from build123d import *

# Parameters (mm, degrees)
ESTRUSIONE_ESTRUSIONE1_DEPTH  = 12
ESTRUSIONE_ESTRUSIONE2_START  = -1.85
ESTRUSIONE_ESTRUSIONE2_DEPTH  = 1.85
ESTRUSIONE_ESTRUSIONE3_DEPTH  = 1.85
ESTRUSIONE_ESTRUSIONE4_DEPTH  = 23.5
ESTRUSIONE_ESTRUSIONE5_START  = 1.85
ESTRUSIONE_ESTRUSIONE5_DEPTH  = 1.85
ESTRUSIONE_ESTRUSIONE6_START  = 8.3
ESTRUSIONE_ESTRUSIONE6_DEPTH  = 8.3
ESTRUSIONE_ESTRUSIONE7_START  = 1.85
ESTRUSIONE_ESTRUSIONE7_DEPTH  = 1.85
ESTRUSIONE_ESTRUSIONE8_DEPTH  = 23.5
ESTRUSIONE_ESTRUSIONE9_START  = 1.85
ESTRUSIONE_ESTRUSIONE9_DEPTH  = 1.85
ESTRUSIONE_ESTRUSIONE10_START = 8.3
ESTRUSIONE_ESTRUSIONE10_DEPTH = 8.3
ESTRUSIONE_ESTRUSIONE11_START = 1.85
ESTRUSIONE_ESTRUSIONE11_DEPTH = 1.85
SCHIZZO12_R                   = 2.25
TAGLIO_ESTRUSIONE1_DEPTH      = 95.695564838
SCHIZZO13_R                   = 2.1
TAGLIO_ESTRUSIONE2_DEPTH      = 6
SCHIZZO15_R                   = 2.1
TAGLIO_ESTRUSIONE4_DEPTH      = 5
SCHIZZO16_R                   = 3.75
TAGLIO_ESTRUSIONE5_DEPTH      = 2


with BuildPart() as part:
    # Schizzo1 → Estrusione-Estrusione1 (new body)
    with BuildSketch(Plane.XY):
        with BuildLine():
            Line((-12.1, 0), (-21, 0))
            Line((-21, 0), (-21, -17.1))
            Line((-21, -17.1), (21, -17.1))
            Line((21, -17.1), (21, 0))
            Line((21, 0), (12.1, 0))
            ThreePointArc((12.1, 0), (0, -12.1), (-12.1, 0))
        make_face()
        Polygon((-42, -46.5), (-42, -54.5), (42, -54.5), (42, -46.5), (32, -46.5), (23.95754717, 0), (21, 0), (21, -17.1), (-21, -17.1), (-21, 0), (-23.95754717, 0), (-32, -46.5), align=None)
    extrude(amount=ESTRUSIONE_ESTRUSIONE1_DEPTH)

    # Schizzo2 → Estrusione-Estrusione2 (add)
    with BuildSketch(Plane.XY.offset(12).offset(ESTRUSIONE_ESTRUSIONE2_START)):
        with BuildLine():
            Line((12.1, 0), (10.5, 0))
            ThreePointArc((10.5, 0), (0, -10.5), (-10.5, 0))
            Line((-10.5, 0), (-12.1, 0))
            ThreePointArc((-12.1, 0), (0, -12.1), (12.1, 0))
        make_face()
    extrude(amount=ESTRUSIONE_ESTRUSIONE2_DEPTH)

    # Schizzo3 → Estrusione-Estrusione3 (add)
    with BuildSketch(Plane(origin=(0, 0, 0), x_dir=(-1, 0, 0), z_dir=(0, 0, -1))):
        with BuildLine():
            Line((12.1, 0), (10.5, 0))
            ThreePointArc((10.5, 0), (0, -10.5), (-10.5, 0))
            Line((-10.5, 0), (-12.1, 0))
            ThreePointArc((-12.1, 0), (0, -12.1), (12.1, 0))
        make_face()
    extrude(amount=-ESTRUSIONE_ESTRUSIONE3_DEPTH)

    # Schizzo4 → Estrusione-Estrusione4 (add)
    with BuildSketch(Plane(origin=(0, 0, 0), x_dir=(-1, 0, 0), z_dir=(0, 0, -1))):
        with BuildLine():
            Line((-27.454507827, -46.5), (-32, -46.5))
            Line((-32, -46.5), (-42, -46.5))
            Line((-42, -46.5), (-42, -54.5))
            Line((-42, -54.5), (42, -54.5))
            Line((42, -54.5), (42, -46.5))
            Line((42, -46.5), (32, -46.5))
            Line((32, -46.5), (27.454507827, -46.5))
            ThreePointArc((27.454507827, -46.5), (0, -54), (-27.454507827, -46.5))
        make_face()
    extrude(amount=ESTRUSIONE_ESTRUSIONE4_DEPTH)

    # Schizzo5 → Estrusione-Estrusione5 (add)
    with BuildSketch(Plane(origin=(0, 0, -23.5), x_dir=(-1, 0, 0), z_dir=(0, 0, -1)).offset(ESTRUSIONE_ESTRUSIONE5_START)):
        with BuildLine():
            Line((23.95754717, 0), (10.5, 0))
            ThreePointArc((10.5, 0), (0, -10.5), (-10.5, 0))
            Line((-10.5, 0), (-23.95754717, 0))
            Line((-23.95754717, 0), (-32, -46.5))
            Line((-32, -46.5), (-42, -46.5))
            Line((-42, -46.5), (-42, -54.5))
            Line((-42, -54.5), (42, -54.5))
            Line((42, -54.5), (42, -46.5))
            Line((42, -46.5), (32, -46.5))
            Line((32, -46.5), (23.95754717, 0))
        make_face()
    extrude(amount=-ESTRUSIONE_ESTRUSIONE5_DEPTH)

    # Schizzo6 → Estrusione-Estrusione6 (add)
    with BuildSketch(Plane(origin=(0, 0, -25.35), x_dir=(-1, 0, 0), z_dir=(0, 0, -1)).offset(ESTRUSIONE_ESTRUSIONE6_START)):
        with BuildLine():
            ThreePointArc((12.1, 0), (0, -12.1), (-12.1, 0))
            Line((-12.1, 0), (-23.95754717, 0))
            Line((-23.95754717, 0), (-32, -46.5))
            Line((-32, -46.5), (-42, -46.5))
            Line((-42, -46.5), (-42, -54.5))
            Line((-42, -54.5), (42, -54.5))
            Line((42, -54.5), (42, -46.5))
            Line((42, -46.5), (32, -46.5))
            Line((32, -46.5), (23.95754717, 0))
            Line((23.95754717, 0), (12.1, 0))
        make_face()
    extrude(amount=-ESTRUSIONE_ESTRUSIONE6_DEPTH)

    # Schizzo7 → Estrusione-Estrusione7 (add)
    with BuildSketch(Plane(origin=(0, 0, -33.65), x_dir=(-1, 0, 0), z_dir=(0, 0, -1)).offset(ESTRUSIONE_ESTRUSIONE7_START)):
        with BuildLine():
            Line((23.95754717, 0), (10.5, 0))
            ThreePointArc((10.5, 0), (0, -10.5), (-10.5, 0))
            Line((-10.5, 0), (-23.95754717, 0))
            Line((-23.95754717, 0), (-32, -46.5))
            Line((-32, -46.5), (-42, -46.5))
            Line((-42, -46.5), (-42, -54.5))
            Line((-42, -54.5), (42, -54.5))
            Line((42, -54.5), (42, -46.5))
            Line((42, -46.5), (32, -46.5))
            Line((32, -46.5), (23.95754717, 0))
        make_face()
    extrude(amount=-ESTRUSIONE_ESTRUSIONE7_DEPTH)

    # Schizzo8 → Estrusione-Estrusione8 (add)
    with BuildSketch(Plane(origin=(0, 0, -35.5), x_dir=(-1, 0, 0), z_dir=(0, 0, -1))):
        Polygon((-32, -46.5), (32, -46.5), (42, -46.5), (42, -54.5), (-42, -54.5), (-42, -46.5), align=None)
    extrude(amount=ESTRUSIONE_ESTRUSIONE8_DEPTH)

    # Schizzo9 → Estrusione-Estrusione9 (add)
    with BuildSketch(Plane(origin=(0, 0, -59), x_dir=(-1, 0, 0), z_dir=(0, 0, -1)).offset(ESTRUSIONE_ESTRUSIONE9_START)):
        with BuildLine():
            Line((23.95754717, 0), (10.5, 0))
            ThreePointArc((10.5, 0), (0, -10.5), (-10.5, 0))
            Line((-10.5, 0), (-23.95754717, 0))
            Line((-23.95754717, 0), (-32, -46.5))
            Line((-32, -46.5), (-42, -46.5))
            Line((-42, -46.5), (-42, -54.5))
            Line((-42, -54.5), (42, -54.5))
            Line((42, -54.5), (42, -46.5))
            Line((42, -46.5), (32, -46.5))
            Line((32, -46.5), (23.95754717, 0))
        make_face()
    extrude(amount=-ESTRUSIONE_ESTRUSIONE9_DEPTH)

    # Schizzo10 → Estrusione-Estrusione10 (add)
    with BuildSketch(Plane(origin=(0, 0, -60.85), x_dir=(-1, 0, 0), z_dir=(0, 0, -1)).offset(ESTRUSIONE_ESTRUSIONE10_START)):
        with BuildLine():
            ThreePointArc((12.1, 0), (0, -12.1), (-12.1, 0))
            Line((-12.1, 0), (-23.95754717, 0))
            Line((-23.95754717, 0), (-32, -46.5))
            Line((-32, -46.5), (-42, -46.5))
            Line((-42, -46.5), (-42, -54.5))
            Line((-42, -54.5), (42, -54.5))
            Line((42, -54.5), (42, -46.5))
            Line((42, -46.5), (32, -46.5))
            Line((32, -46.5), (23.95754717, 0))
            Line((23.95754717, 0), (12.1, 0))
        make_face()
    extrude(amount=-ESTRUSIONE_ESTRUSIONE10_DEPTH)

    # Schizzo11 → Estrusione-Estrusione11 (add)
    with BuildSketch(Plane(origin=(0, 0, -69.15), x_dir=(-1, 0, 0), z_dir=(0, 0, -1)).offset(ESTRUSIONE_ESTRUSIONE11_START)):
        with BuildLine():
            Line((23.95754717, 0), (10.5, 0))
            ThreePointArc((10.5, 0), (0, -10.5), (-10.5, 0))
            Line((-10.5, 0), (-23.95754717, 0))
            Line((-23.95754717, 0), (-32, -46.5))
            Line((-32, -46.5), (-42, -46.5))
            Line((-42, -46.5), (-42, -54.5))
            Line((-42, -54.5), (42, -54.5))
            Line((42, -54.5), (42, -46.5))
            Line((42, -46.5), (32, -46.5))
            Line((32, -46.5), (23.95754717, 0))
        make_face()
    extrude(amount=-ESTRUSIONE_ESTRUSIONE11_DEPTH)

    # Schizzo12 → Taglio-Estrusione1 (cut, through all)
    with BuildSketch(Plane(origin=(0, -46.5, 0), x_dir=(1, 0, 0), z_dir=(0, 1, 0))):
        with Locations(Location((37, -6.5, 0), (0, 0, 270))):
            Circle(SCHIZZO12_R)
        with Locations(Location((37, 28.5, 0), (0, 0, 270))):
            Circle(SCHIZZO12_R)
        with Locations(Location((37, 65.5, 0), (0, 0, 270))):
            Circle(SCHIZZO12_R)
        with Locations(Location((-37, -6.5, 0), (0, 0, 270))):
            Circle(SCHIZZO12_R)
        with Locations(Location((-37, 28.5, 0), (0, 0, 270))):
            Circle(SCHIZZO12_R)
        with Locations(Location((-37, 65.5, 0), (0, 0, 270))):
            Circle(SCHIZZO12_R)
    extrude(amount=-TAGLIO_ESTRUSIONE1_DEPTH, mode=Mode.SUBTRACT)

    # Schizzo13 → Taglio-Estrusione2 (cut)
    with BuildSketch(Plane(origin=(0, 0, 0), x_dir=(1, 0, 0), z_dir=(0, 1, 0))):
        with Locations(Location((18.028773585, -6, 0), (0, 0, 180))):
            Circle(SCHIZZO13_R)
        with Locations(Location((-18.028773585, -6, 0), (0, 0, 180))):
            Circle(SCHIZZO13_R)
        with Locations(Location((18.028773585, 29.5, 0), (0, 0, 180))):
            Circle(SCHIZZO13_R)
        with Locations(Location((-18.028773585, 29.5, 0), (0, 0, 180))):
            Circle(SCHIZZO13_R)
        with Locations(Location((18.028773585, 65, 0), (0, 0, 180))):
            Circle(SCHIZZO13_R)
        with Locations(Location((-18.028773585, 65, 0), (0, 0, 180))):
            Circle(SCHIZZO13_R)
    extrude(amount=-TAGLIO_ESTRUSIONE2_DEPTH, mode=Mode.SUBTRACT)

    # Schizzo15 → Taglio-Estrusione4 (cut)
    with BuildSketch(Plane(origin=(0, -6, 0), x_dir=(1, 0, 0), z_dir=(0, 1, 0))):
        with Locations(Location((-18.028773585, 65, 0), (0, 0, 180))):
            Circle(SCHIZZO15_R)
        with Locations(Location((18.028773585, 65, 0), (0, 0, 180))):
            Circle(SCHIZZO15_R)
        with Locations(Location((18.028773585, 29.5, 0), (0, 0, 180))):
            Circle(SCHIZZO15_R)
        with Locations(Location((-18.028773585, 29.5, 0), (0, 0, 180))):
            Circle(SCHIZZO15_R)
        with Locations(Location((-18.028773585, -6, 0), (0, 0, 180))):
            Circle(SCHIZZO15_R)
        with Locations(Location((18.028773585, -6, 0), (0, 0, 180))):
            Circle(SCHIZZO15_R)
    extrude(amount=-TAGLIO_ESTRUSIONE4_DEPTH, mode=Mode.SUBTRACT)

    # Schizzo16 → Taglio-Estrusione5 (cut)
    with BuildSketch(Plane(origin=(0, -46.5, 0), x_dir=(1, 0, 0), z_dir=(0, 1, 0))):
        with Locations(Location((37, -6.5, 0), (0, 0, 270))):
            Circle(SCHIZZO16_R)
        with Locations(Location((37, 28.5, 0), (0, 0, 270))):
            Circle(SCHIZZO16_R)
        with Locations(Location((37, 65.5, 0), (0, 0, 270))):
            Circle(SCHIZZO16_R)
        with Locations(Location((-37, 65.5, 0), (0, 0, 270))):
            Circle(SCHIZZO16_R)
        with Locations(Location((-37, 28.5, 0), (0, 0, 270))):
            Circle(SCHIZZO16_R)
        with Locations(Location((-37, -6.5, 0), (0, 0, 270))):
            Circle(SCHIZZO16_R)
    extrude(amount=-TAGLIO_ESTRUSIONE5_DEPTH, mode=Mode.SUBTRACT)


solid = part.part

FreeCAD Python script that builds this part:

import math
import FreeCAD as App
import Part
import Sketcher
from FreeCAD import Vector
Q = App.Units.Quantity


def add_polygon(sketch, points):
    """Adds a closed chain of lines whose ends are joined by coincident constraints."""
    first, n = sketch.GeometryCount, len(points)
    for a, b in zip(points, points[1:] + points[:1]):
        sketch.addGeometry(Part.LineSegment(App.Vector(*a, 0), App.Vector(*b, 0)), False)
    for i in range(n):
        sketch.addConstraint(Sketcher.Constraint("Coincident", first + i, 2, first + (i + 1) % n, 1))

doc = App.newDocument("Part")
body = doc.addObject("PartDesign::Body", "Body")

sketch1 = body.newObject("Sketcher::SketchObject", "Sketch")
sketch1.AttachmentSupport = (doc.getObject("XY_Plane"), [""])
sketch1.MapMode = "FlatFace"
sketch1.addGeometry(Part.LineSegment(Vector(-12.1, 0, 0), Vector(-23.957547, 0, 0)), False)
sketch1.addGeometry(Part.LineSegment(Vector(-23.957547, 0, 0), Vector(-32, -46.5, 0)), False)
sketch1.addGeometry(Part.LineSegment(Vector(-32, -46.5, 0), Vector(-42, -46.5, 0)), False)
sketch1.addGeometry(Part.LineSegment(Vector(-42, -46.5, 0), Vector(-42, -54.5, 0)), False)
sketch1.addGeometry(Part.LineSegment(Vector(-42, -54.5, 0), Vector(42, -54.5, 0)), False)
sketch1.addGeometry(Part.LineSegment(Vector(42, -54.5, 0), Vector(42, -46.5, 0)), False)
sketch1.addGeometry(Part.LineSegment(Vector(42, -46.5, 0), Vector(32, -46.5, 0)), False)
sketch1.addGeometry(Part.LineSegment(Vector(32, -46.5, 0), Vector(23.957547, 0, 0)), False)
sketch1.addGeometry(Part.LineSegment(Vector(23.957547, 0, 0), Vector(12.1, 0, 0)), False)
sketch1.addGeometry(Part.ArcOfCircle(Part.Circle(Vector(0, 0, 0), Vector(0, 0, 1), 12.1), math.radians(180), math.radians(360)), False)
sketch1.addConstraint(Sketcher.Constraint("Coincident", 0, 2, 1, 1))
sketch1.addConstraint(Sketcher.Constraint("Coincident", 1, 2, 2, 1))
sketch1.addConstraint(Sketcher.Constraint("Coincident", 2, 2, 3, 1))
sketch1.addConstraint(Sketcher.Constraint("Coincident", 3, 2, 4, 1))
sketch1.addConstraint(Sketcher.Constraint("Coincident", 4, 2, 5, 1))
sketch1.addConstraint(Sketcher.Constraint("Coincident", 5, 2, 6, 1))
sketch1.addConstraint(Sketcher.Constraint("Coincident", 6, 2, 7, 1))
sketch1.addConstraint(Sketcher.Constraint("Coincident", 7, 2, 8, 1))
sketch1.addConstraint(Sketcher.Constraint("Coincident", 8, 2, 9, 2))
sketch1.addConstraint(Sketcher.Constraint("Coincident", 9, 1, 0, 1))
sketch1.addConstraint(Sketcher.Constraint("Horizontal", 0))
sketch1.addConstraint(Sketcher.Constraint("Horizontal", 2))
sketch1.addConstraint(Sketcher.Constraint("Vertical", 3))
sketch1.addConstraint(Sketcher.Constraint("Horizontal", 4))
sketch1.addConstraint(Sketcher.Constraint("Vertical", 5))
sketch1.addConstraint(Sketcher.Constraint("Horizontal", 6))
sketch1.addConstraint(Sketcher.Constraint("Horizontal", 8))
sketch1.addConstraint(Sketcher.Constraint("Coincident", 9, 3, -1, 1))
sketch1.addConstraint(Sketcher.Constraint("Symmetric", 0, 2, 7, 2, -1, 1))
sketch1.addConstraint(Sketcher.Constraint("Symmetric", 2, 2, 5, 2, -2))
sketch1.addConstraint(Sketcher.Constraint("PointOnObject", 0, 2, -1))
sketch1.addConstraint(Sketcher.Constraint("Equal", 2, 6))
sketch1.addConstraint(Sketcher.Constraint("Radius", 9, Q("12.1 mm")))
sketch1.addConstraint(Sketcher.Constraint("DistanceX", 2, 2, 2, 1, Q("10 mm")))
sketch1.addConstraint(Sketcher.Constraint("DistanceX", 4, 1, 4, 2, Q("84 mm")))
sketch1.addConstraint(Sketcher.Constraint("DistanceY", 3, 2, 3, 1, Q("8 mm")))
sketch1.addConstraint(Sketcher.Constraint("DistanceY", 1, 2, -1, 1, Q("46.5 mm")))
sketch1.addConstraint(Sketcher.Constraint("Distance", 1, Q("47.19037 mm")))
pad1 = body.newObject("PartDesign::Pad", "Pad")
pad1.Profile = sketch1
pad1.Length = 12

sketch2 = body.newObject("Sketcher::SketchObject", "Sketch001")
sketch2.AttachmentSupport = (doc.getObject("XY_Plane"), [""])
sketch2.MapMode = "FlatFace"
sketch2.AttachmentOffset = App.Placement(Vector(0, 0, 10.15), App.Rotation())
sketch2.addGeometry(Part.LineSegment(Vector(12.1, 0, 0), Vector(10.5, 0, 0)), False)
sketch2.addGeometry(Part.ArcOfCircle(Part.Circle(Vector(0, 0, 0), Vector(0, 0, 1), 10.5), math.radians(180), math.radians(360)), False)
sketch2.addGeometry(Part.LineSegment(Vector(-10.5, 0, 0), Vector(-12.1, 0, 0)), False)
sketch2.addGeometry(Part.ArcOfCircle(Part.Circle(Vector(0, 0, 0), Vector(0, 0, 1), 12.1), math.radians(180), math.radians(360)), False)
sketch2.addConstraint(Sketcher.Constraint("Coincident", 0, 2, 1, 2))
sketch2.addConstraint(Sketcher.Constraint("Coincident", 1, 1, 2, 1))
sketch2.addConstraint(Sketcher.Constraint("Coincident", 2, 2, 3, 1))
sketch2.addConstraint(Sketcher.Constraint("Coincident", 3, 2, 0, 1))
sketch2.addConstraint(Sketcher.Constraint("Horizontal", 0))
sketch2.addConstraint(Sketcher.Constraint("Horizontal", 2))
sketch2.addConstraint(Sketcher.Constraint("Coincident", 1, 3, -1, 1))
sketch2.addConstraint(Sketcher.Constraint("Coincident", 3, 3, -1, 1))
sketch2.addConstraint(Sketcher.Constraint("PointOnObject", 0, 2, -1))
sketch2.addConstraint(Sketcher.Constraint("PointOnObject", 1, 1, -1))
sketch2.addConstraint(Sketcher.Constraint("Radius", 1, Q("10.5 mm")))
sketch2.addConstraint(Sketcher.Constraint("Radius", 3, Q("12.1 mm")))
pad2 = body.newObject("PartDesign::Pad", "Pad001")
pad2.Profile = sketch2
pad2.Length = 1.85

sketch3 = body.newObject("Sketcher::SketchObject", "Sketch002")
sketch3.AttachmentSupport = (doc.getObject("XY_Plane"), [""])
sketch3.MapMode = "FlatFace"
sketch3.addGeometry(Part.LineSegment(Vector(-12.1, 0, 0), Vector(-10.5, 0, 0)), False)
sketch3.addGeometry(Part.ArcOfCircle(Part.Circle(Vector(0, 0, 0), Vector(0, 0, 1), 10.5), math.radians(180), math.radians(360)), False)
sketch3.addGeometry(Part.LineSegment(Vector(10.5, 0, 0), Vector(12.1, 0, 0)), False)
sketch3.addGeometry(Part.ArcOfCircle(Part.Circle(Vector(0, 0, 0), Vector(0, 0, 1), 12.1), math.radians(180), math.radians(360)), False)
sketch3.addConstraint(Sketcher.Constraint("Coincident", 0, 2, 1, 1))
sketch3.addConstraint(Sketcher.Constraint("Coincident", 1, 2, 2, 1))
sketch3.addConstraint(Sketcher.Constraint("Coincident", 2, 2, 3, 2))
sketch3.addConstraint(Sketcher.Constraint("Coincident", 3, 1, 0, 1))
sketch3.addConstraint(Sketcher.Constraint("Horizontal", 0))
sketch3.addConstraint(Sketcher.Constraint("Horizontal", 2))
sketch3.addConstraint(Sketcher.Constraint("Coincident", 1, 3, -1, 1))
sketch3.addConstraint(Sketcher.Constraint("Coincident", 3, 3, -1, 1))
sketch3.addConstraint(Sketcher.Constraint("PointOnObject", 0, 2, -1))
sketch3.addConstraint(Sketcher.Constraint("PointOnObject", 1, 2, -1))
sketch3.addConstraint(Sketcher.Constraint("Radius", 1, Q("10.5 mm")))
sketch3.addConstraint(Sketcher.Constraint("Radius", 3, Q("12.1 mm")))
pad3 = body.newObject("PartDesign::Pad", "Pad002")
pad3.Profile = sketch3
pad3.Length = 1.85

sketch4 = body.newObject("Sketcher::SketchObject", "Sketch003")
sketch4.AttachmentSupport = (doc.getObject("XY_Plane"), [""])
sketch4.MapMode = "FlatFace"
sketch4.addGeometry(Part.LineSegment(Vector(27.454508, -46.5, 0), Vector(42, -46.5, 0)), False)
sketch4.addGeometry(Part.LineSegment(Vector(42, -46.5, 0), Vector(42, -54.5, 0)), False)
sketch4.addGeometry(Part.LineSegment(Vector(42, -54.5, 0), Vector(-42, -54.5, 0)), False)
sketch4.addGeometry(Part.LineSegment(Vector(-42, -54.5, 0), Vector(-42, -46.5, 0)), False)
sketch4.addGeometry(Part.LineSegment(Vector(-42, -46.5, 0), Vector(-27.454508, -46.5, 0)), False)
sketch4.addGeometry(Part.ArcOfCircle(Part.Circle(Vector(0, 0, 0), Vector(0, 0, 1), 54), math.radians(-120.558432), math.radians(-59.441568)), False)
sketch4.addConstraint(Sketcher.Constraint("Coincident", 0, 2, 1, 1))
sketch4.addConstraint(Sketcher.Constraint("Coincident", 1, 2, 2, 1))
sketch4.addConstraint(Sketcher.Constraint("Coincident", 2, 2, 3, 1))
sketch4.addConstraint(Sketcher.Constraint("Coincident", 3, 2, 4, 1))
sketch4.addConstraint(Sketcher.Constraint("Coincident", 4, 2, 5, 1))
sketch4.addConstraint(Sketcher.Constraint("Coincident", 5, 2, 0, 1))
sketch4.addConstraint(Sketcher.Constraint("Horizontal", 0))
sketch4.addConstraint(Sketcher.Constraint("Vertical", 1))
sketch4.addConstraint(Sketcher.Constraint("Horizontal", 2))
sketch4.addConstraint(Sketcher.Constraint("Vertical", 3))
sketch4.addConstraint(Sketcher.Constraint("Horizontal", 4))
sketch4.addConstraint(Sketcher.Constraint("Coincident", 5, 3, -1, 1))
sketch4.addConstraint(Sketcher.Constraint("Symmetric", 0, 2, 3, 2, -2))
sketch4.addConstraint(Sketcher.Constraint("Radius", 5, Q("54 mm")))
sketch4.addConstraint(Sketcher.Constraint("DistanceX", 2, 2, 2, 1, Q("84 mm")))
sketch4.addConstraint(Sketcher.Constraint("DistanceY", 1, 2, 1, 1, Q("8 mm")))
sketch4.addConstraint(Sketcher.Constraint("DistanceY", 0, 2, -1, 1, Q("46.5 mm")))
pad4 = body.newObject("PartDesign::Pad", "Pad003")
pad4.Profile = sketch4
pad4.Length = 23.5
pad4.Reversed = True

sketch5 = body.newObject("Sketcher::SketchObject", "Sketch004")
sketch5.AttachmentSupport = (doc.getObject("XY_Plane"), [""])
sketch5.MapMode = "FlatFace"
sketch5.AttachmentOffset = App.Placement(Vector(0, 0, -25.35), App.Rotation())
sketch5.addGeometry(Part.LineSegment(Vector(-23.957547, 0, 0), Vector(-10.5, 0, 0)), False)
sketch5.addGeometry(Part.ArcOfCircle(Part.Circle(Vector(0, 0, 0), Vector(0, 0, 1), 10.5), math.radians(180), math.radians(360)), False)
sketch5.addGeometry(Part.LineSegment(Vector(10.5, 0, 0), Vector(23.957547, 0, 0)), False)
sketch5.addGeometry(Part.LineSegment(Vector(23.957547, 0, 0), Vector(32, -46.5, 0)), False)
sketch5.addGeometry(Part.LineSegment(Vector(32, -46.5, 0), Vector(42, -46.5, 0)), False)
sketch5.addGeometry(Part.LineSegment(Vector(42, -46.5, 0), Vector(42, -54.5, 0)), False)
sketch5.addGeometry(Part.LineSegment(Vector(42, -54.5, 0), Vector(-42, -54.5, 0)), False)
sketch5.addGeometry(Part.LineSegment(Vector(-42, -54.5, 0), Vector(-42, -46.5, 0)), False)
sketch5.addGeometry(Part.LineSegment(Vector(-42, -46.5, 0), Vector(-32, -46.5, 0)), False)
sketch5.addGeometry(Part.LineSegment(Vector(-32, -46.5, 0), Vector(-23.957547, 0, 0)), False)
sketch5.addConstraint(Sketcher.Constraint("Coincident", 0, 2, 1, 1))
sketch5.addConstraint(Sketcher.Constraint("Coincident", 1, 2, 2, 1))
sketch5.addConstraint(Sketcher.Constraint("Coincident", 2, 2, 3, 1))
sketch5.addConstraint(Sketcher.Constraint("Coincident", 3, 2, 4, 1))
sketch5.addConstraint(Sketcher.Constraint("Coincident", 4, 2, 5, 1))
sketch5.addConstraint(Sketcher.Constraint("Coincident", 5, 2, 6, 1))
sketch5.addConstraint(Sketcher.Constraint("Coincident", 6, 2, 7, 1))
sketch5.addConstraint(Sketcher.Constraint("Coincident", 7, 2, 8, 1))
sketch5.addConstraint(Sketcher.Constraint("Coincident", 8, 2, 9, 1))
sketch5.addConstraint(Sketcher.Constraint("Coincident", 9, 2, 0, 1))
sketch5.addConstraint(Sketcher.Constraint("Horizontal", 0))
sketch5.addConstraint(Sketcher.Constraint("Horizontal", 2))
sketch5.addConstraint(Sketcher.Constraint("Horizontal", 4))
sketch5.addConstraint(Sketcher.Constraint("Vertical", 5))
sketch5.addConstraint(Sketcher.Constraint("Horizontal", 6))
sketch5.addConstraint(Sketcher.Constraint("Vertical", 7))
sketch5.addConstraint(Sketcher.Constraint("Horizontal", 8))
sketch5.addConstraint(Sketcher.Constraint("Coincident", 1, 3, -1, 1))
sketch5.addConstraint(Sketcher.Constraint("Symmetric", 2, 2, 9, 2, -1, 1))
sketch5.addConstraint(Sketcher.Constraint("Symmetric", 4, 2, 7, 2, -2))
sketch5.addConstraint(Sketcher.Constraint("PointOnObject", 0, 2, -1))
sketch5.addConstraint(Sketcher.Constraint("Equal", 4, 8))
sketch5.addConstraint(Sketcher.Constraint("Radius", 1, Q("10.5 mm")))
sketch5.addConstraint(Sketcher.Constraint("DistanceX", 4, 1, 4, 2, Q("10 mm")))
sketch5.addConstraint(Sketcher.Constraint("DistanceX", 6, 2, 6, 1, Q("84 mm")))
sketch5.addConstraint(Sketcher.Constraint("DistanceY", 5, 2, 5, 1, Q("8 mm")))
sketch5.addConstraint(Sketcher.Constraint("DistanceY", 3, 2, -1, 1, Q("46.5 mm")))
sketch5.addConstraint(Sketcher.Constraint("Distance", 3, Q("47.19037 mm")))
pad5 = body.newObject("PartDesign::Pad", "Pad004")
pad5.Profile = sketch5
pad5.Length = 1.85

sketch6 = body.newObject("Sketcher::SketchObject", "Sketch005")
sketch6.AttachmentSupport = (doc.getObject("XY_Plane"), [""])
sketch6.MapMode = "FlatFace"
sketch6.AttachmentOffset = App.Placement(Vector(0, 0, -33.65), App.Rotation())
sketch6.addGeometry(Part.ArcOfCircle(Part.Circle(Vector(0, 0, 0), Vector(0, 0, 1), 12.1), math.radians(180), math.radians(360)), False)
sketch6.addGeometry(Part.LineSegment(Vector(12.1, 0, 0), Vector(23.957547, 0, 0)), False)
sketch6.addGeometry(Part.LineSegment(Vector(23.957547, 0, 0), Vector(32, -46.5, 0)), False)
sketch6.addGeometry(Part.LineSegment(Vector(32, -46.5, 0), Vector(42, -46.5, 0)), False)
sketch6.addGeometry(Part.LineSegment(Vector(42, -46.5, 0), Vector(42, -54.5, 0)), False)
sketch6.addGeometry(Part.LineSegment(Vector(42, -54.5, 0), Vector(-42, -54.5, 0)), False)
sketch6.addGeometry(Part.LineSegment(Vector(-42, -54.5, 0), Vector(-42, -46.5, 0)), False)
sketch6.addGeometry(Part.LineSegment(Vector(-42, -46.5, 0), Vector(-32, -46.5, 0)), False)
sketch6.addGeometry(Part.LineSegment(Vector(-32, -46.5, 0), Vector(-23.957547, 0, 0)), False)
sketch6.addGeometry(Part.LineSegment(Vector(-23.957547, 0, 0), Vector(-12.1, 0, 0)), False)
sketch6.addConstraint(Sketcher.Constraint("Coincident", 0, 2, 1, 1))
sketch6.addConstraint(Sketcher.Constraint("Coincident", 1, 2, 2, 1))
sketch6.addConstraint(Sketcher.Constraint("Coincident", 2, 2, 3, 1))
sketch6.addConstraint(Sketcher.Constraint("Coincident", 3, 2, 4, 1))
sketch6.addConstraint(Sketcher.Constraint("Coincident", 4, 2, 5, 1))
sketch6.addConstraint(Sketcher.Constraint("Coincident", 5, 2, 6, 1))
sketch6.addConstraint(Sketcher.Constraint("Coincident", 6, 2, 7, 1))
sketch6.addConstraint(Sketcher.Constraint("Coincident", 7, 2, 8, 1))
sketch6.addConstraint(Sketcher.Constraint("Coincident", 8, 2, 9, 1))
sketch6.addConstraint(Sketcher.Constraint("Coincident", 9, 2, 0, 1))
sketch6.addConstraint(Sketcher.Constraint("Horizontal", 1))
sketch6.addConstraint(Sketcher.Constraint("Horizontal", 3))
sketch6.addConstraint(Sketcher.Constraint("Vertical", 4))
sketch6.addConstraint(Sketcher.Constraint("Horizontal", 5))
sketch6.addConstraint(Sketcher.Constraint("Vertical", 6))
sketch6.addConstraint(Sketcher.Constraint("Horizontal", 7))
sketch6.addConstraint(Sketcher.Constraint("Horizontal", 9))
sketch6.addConstraint(Sketcher.Constraint("Coincident", 0, 3, -1, 1))
sketch6.addConstraint(Sketcher.Constraint("Symmetric", 1, 2, 8, 2, -1, 1))
sketch6.addConstraint(Sketcher.Constraint("Symmetric", 3, 2, 6, 2, -2))
sketch6.addConstraint(Sketcher.Constraint("PointOnObject", 0, 2, -1))
sketch6.addConstraint(Sketcher.Constraint("Equal", 3, 7))
sketch6.addConstraint(Sketcher.Constraint("Radius", 0, Q("12.1 mm")))
sketch6.addConstraint(Sketcher.Constraint("DistanceX", 3, 1, 3, 2, Q("10 mm")))
sketch6.addConstraint(Sketcher.Constraint("DistanceX", 5, 2, 5, 1, Q("84 mm")))
sketch6.addConstraint(Sketcher.Constraint("DistanceY", 4, 2, 4, 1, Q("8 mm")))
sketch6.addConstraint(Sketcher.Constraint("DistanceY", 2, 2, -1, 1, Q("46.5 mm")))
sketch6.addConstraint(Sketcher.Constraint("Distance", 2, Q("47.19037 mm")))
pad6 = body.newObject("PartDesign::Pad", "Pad005")
pad6.Profile = sketch6
pad6.Length = 8.3

sketch7 = body.newObject("Sketcher::SketchObject", "Sketch006")
sketch7.AttachmentSupport = (doc.getObject("XY_Plane"), [""])
sketch7.MapMode = "FlatFace"
sketch7.AttachmentOffset = App.Placement(Vector(0, 0, -35.5), App.Rotation())
sketch7.addGeometry(Part.LineSegment(Vector(-23.957547, 0, 0), Vector(-10.5, 0, 0)), False)
sketch7.addGeometry(Part.ArcOfCircle(Part.Circle(Vector(0, 0, 0), Vector(0, 0, 1), 10.5), math.radians(180), math.radians(360)), False)
sketch7.addGeometry(Part.LineSegment(Vector(10.5, 0, 0), Vector(23.957547, 0, 0)), False)
sketch7.addGeometry(Part.LineSegment(Vector(23.957547, 0, 0), Vector(32, -46.5, 0)), False)
sketch7.addGeometry(Part.LineSegment(Vector(32, -46.5, 0), Vector(42, -46.5, 0)), False)
sketch7.addGeometry(Part.LineSegment(Vector(42, -46.5, 0), Vector(42, -54.5, 0)), False)
sketch7.addGeometry(Part.LineSegment(Vector(42, -54.5, 0), Vector(-42, -54.5, 0)), False)
sketch7.addGeometry(Part.LineSegment(Vector(-42, -54.5, 0), Vector(-42, -46.5, 0)), False)
sketch7.addGeometry(Part.LineSegment(Vector(-42, -46.5, 0), Vector(-32, -46.5, 0)), False)
sketch7.addGeometry(Part.LineSegment(Vector(-32, -46.5, 0), Vector(-23.957547, 0, 0)), False)
sketch7.addConstraint(Sketcher.Constraint("Coincident", 0, 2, 1, 1))
sketch7.addConstraint(Sketcher.Constraint("Coincident", 1, 2, 2, 1))
sketch7.addConstraint(Sketcher.Constraint("Coincident", 2, 2, 3, 1))
sketch7.addConstraint(Sketcher.Constraint("Coincident", 3, 2, 4, 1))
sketch7.addConstraint(Sketcher.Constraint("Coincident", 4, 2, 5, 1))
sketch7.addConstraint(Sketcher.Constraint("Coincident", 5, 2, 6, 1))
sketch7.addConstraint(Sketcher.Constraint("Coincident", 6, 2, 7, 1))
sketch7.addConstraint(Sketcher.Constraint("Coincident", 7, 2, 8, 1))
sketch7.addConstraint(Sketcher.Constraint("Coincident", 8, 2, 9, 1))
sketch7.addConstraint(Sketcher.Constraint("Coincident", 9, 2, 0, 1))
sketch7.addConstraint(Sketcher.Constraint("Horizontal", 0))
sketch7.addConstraint(Sketcher.Constraint("Horizontal", 2))
sketch7.addConstraint(Sketcher.Constraint("Horizontal", 4))
sketch7.addConstraint(Sketcher.Constraint("Vertical", 5))
sketch7.addConstraint(Sketcher.Constraint("Horizontal", 6))
sketch7.addConstraint(Sketcher.Constraint("Vertical", 7))
sketch7.addConstraint(Sketcher.Constraint("Horizontal", 8))
sketch7.addConstraint(Sketcher.Constraint("Coincident", 1, 3, -1, 1))
sketch7.addConstraint(Sketcher.Constraint("Symmetric", 2, 2, 9, 2, -1, 1))
sketch7.addConstraint(Sketcher.Constraint("Symmetric", 4, 2, 7, 2, -2))
sketch7.addConstraint(Sketcher.Constraint("PointOnObject", 0, 2, -1))
sketch7.addConstraint(Sketcher.Constraint("Equal", 4, 8))
sketch7.addConstraint(Sketcher.Constraint("Radius", 1, Q("10.5 mm")))
sketch7.addConstraint(Sketcher.Constraint("DistanceX", 4, 1, 4, 2, Q("10 mm")))
sketch7.addConstraint(Sketcher.Constraint("DistanceX", 6, 2, 6, 1, Q("84 mm")))
sketch7.addConstraint(Sketcher.Constraint("DistanceY", 5, 2, 5, 1, Q("8 mm")))
sketch7.addConstraint(Sketcher.Constraint("DistanceY", 3, 2, -1, 1, Q("46.5 mm")))
sketch7.addConstraint(Sketcher.Constraint("Distance", 3, Q("47.19037 mm")))
pad7 = body.newObject("PartDesign::Pad", "Pad006")
pad7.Profile = sketch7
pad7.Length = 1.85

sketch8 = body.newObject("Sketcher::SketchObject", "Sketch007")
sketch8.AttachmentSupport = (doc.getObject("XY_Plane"), [""])
sketch8.MapMode = "FlatFace"
sketch8.AttachmentOffset = App.Placement(Vector(0, 0, -35.5), App.Rotation())
add_polygon(sketch8, [(-42, -46.5), (42, -46.5), (42, -54.5), (-42, -54.5)])
sketch8.addConstraint(Sketcher.Constraint("Horizontal", 0))
sketch8.addConstraint(Sketcher.Constraint("Vertical", 1))
sketch8.addConstraint(Sketcher.Constraint("Horizontal", 2))
sketch8.addConstraint(Sketcher.Constraint("Vertical", 3))
sketch8.addConstraint(Sketcher.Constraint("DistanceX", 0, 1, 0, 2, Q("84 mm")))
sketch8.addConstraint(Sketcher.Constraint("DistanceY", 1, 2, 1, 1, Q("8 mm")))
sketch8.addConstraint(Sketcher.Constraint("DistanceX", -1, 1, 0, 2, Q("42 mm")))
sketch8.addConstraint(Sketcher.Constraint("DistanceY", 0, 2, -1, 1, Q("46.5 mm")))
pad8 = body.newObject("PartDesign::Pad", "Pad007")
pad8.Profile = sketch8
pad8.Length = 23.5
pad8.Reversed = True

sketch9 = body.newObject("Sketcher::SketchObject", "Sketch008")
sketch9.AttachmentSupport = (doc.getObject("XY_Plane"), [""])
sketch9.MapMode = "FlatFace"
sketch9.AttachmentOffset = App.Placement(Vector(0, 0, -60.85), App.Rotation())
sketch9.addGeometry(Part.LineSegment(Vector(-23.957547, 0, 0), Vector(-10.5, 0, 0)), False)
sketch9.addGeometry(Part.ArcOfCircle(Part.Circle(Vector(0, 0, 0), Vector(0, 0, 1), 10.5), math.radians(180), math.radians(360)), False)
sketch9.addGeometry(Part.LineSegment(Vector(10.5, 0, 0), Vector(23.957547, 0, 0)), False)
sketch9.addGeometry(Part.LineSegment(Vector(23.957547, 0, 0), Vector(32, -46.5, 0)), False)
sketch9.addGeometry(Part.LineSegment(Vector(32, -46.5, 0), Vector(42, -46.5, 0)), False)
sketch9.addGeometry(Part.LineSegment(Vector(42, -46.5, 0), Vector(42, -54.5, 0)), False)
sketch9.addGeometry(Part.LineSegment(Vector(42, -54.5, 0), Vector(-42, -54.5, 0)), False)
sketch9.addGeometry(Part.LineSegment(Vector(-42, -54.5, 0), Vector(-42, -46.5, 0)), False)
sketch9.addGeometry(Part.LineSegment(Vector(-42, -46.5, 0), Vector(-32, -46.5, 0)), False)
sketch9.addGeometry(Part.LineSegment(Vector(-32, -46.5, 0), Vector(-23.957547, 0, 0)), False)
sketch9.addConstraint(Sketcher.Constraint("Coincident", 0, 2, 1, 1))
sketch9.addConstraint(Sketcher.Constraint("Coincident", 1, 2, 2, 1))
sketch9.addConstraint(Sketcher.Constraint("Coincident", 2, 2, 3, 1))
sketch9.addConstraint(Sketcher.Constraint("Coincident", 3, 2, 4, 1))
sketch9.addConstraint(Sketcher.Constraint("Coincident", 4, 2, 5, 1))
sketch9.addConstraint(Sketcher.Constraint("Coincident", 5, 2, 6, 1))
sketch9.addConstraint(Sketcher.Constraint("Coincident", 6, 2, 7, 1))
sketch9.addConstraint(Sketcher.Constraint("Coincident", 7, 2, 8, 1))
sketch9.addConstraint(Sketcher.Constraint("Coincident", 8, 2, 9, 1))
sketch9.addConstraint(Sketcher.Constraint("Coincident", 9, 2, 0, 1))
sketch9.addConstraint(Sketcher.Constraint("Horizontal", 0))
sketch9.addConstraint(Sketcher.Constraint("Horizontal", 2))
sketch9.addConstraint(Sketcher.Constraint("Horizontal", 4))
sketch9.addConstraint(Sketcher.Constraint("Vertical", 5))
sketch9.addConstraint(Sketcher.Constraint("Horizontal", 6))
sketch9.addConstraint(Sketcher.Constraint("Vertical", 7))
sketch9.addConstraint(Sketcher.Constraint("Horizontal", 8))
sketch9.addConstraint(Sketcher.Constraint("Coincident", 1, 3, -1, 1))
sketch9.addConstraint(Sketcher.Constraint("Symmetric", 2, 2, 9, 2, -1, 1))
sketch9.addConstraint(Sketcher.Constraint("Symmetric", 4, 2, 7, 2, -2))
sketch9.addConstraint(Sketcher.Constraint("PointOnObject", 0, 2, -1))
sketch9.addConstraint(Sketcher.Constraint("Equal", 4, 8))
sketch9.addConstraint(Sketcher.Constraint("Radius", 1, Q("10.5 mm")))
sketch9.addConstraint(Sketcher.Constraint("DistanceX", 4, 1, 4, 2, Q("10 mm")))
sketch9.addConstraint(Sketcher.Constraint("DistanceX", 6, 2, 6, 1, Q("84 mm")))
sketch9.addConstraint(Sketcher.Constraint("DistanceY", 5, 2, 5, 1, Q("8 mm")))
sketch9.addConstraint(Sketcher.Constraint("DistanceY", 3, 2, -1, 1, Q("46.5 mm")))
sketch9.addConstraint(Sketcher.Constraint("Distance", 3, Q("47.19037 mm")))
pad9 = body.newObject("PartDesign::Pad", "Pad008")
pad9.Profile = sketch9
pad9.Length = 1.85

sketch10 = body.newObject("Sketcher::SketchObject", "Sketch009")
sketch10.AttachmentSupport = (doc.getObject("XY_Plane"), [""])
sketch10.MapMode = "FlatFace"
sketch10.AttachmentOffset = App.Placement(Vector(0, 0, -69.15), App.Rotation())
sketch10.addGeometry(Part.ArcOfCircle(Part.Circle(Vector(0, 0, 0), Vector(0, 0, 1), 12.1), math.radians(180), math.radians(360)), False)
sketch10.addGeometry(Part.LineSegment(Vector(12.1, 0, 0), Vector(23.957547, 0, 0)), False)
sketch10.addGeometry(Part.LineSegment(Vector(23.957547, 0, 0), Vector(32, -46.5, 0)), False)
sketch10.addGeometry(Part.LineSegment(Vector(32, -46.5, 0), Vector(42, -46.5, 0)), False)
sketch10.addGeometry(Part.LineSegment(Vector(42, -46.5, 0), Vector(42, -54.5, 0)), False)
sketch10.addGeometry(Part.LineSegment(Vector(42, -54.5, 0), Vector(-42, -54.5, 0)), False)
sketch10.addGeometry(Part.LineSegment(Vector(-42, -54.5, 0), Vector(-42, -46.5, 0)), False)
sketch10.addGeometry(Part.LineSegment(Vector(-42, -46.5, 0), Vector(-32, -46.5, 0)), False)
sketch10.addGeometry(Part.LineSegment(Vector(-32, -46.5, 0), Vector(-23.957547, 0, 0)), False)
sketch10.addGeometry(Part.LineSegment(Vector(-23.957547, 0, 0), Vector(-12.1, 0, 0)), False)
sketch10.addConstraint(Sketcher.Constraint("Coincident", 0, 2, 1, 1))
sketch10.addConstraint(Sketcher.Constraint("Coincident", 1, 2, 2, 1))
sketch10.addConstraint(Sketcher.Constraint("Coincident", 2, 2, 3, 1))
sketch10.addConstraint(Sketcher.Constraint("Coincident", 3, 2, 4, 1))
sketch10.addConstraint(Sketcher.Constraint("Coincident", 4, 2, 5, 1))
sketch10.addConstraint(Sketcher.Constraint("Coincident", 5, 2, 6, 1))
sketch10.addConstraint(Sketcher.Constraint("Coincident", 6, 2, 7, 1))
sketch10.addConstraint(Sketcher.Constraint("Coincident", 7, 2, 8, 1))
sketch10.addConstraint(Sketcher.Constraint("Coincident", 8, 2, 9, 1))
sketch10.addConstraint(Sketcher.Constraint("Coincident", 9, 2, 0, 1))
sketch10.addConstraint(Sketcher.Constraint("Horizontal", 1))
sketch10.addConstraint(Sketcher.Constraint("Horizontal", 3))
sketch10.addConstraint(Sketcher.Constraint("Vertical", 4))
sketch10.addConstraint(Sketcher.Constraint("Horizontal", 5))
sketch10.addConstraint(Sketcher.Constraint("Vertical", 6))
sketch10.addConstraint(Sketcher.Constraint("Horizontal", 7))
sketch10.addConstraint(Sketcher.Constraint("Horizontal", 9))
sketch10.addConstraint(Sketcher.Constraint("Coincident", 0, 3, -1, 1))
sketch10.addConstraint(Sketcher.Constraint("Symmetric", 1, 2, 8, 2, -1, 1))
sketch10.addConstraint(Sketcher.Constraint("Symmetric", 3, 2, 6, 2, -2))
sketch10.addConstraint(Sketcher.Constraint("PointOnObject", 0, 2, -1))
sketch10.addConstraint(Sketcher.Constraint("Equal", 3, 7))
sketch10.addConstraint(Sketcher.Constraint("Radius", 0, Q("12.1 mm")))
sketch10.addConstraint(Sketcher.Constraint("DistanceX", 3, 1, 3, 2, Q("10 mm")))
sketch10.addConstraint(Sketcher.Constraint("DistanceX", 5, 2, 5, 1, Q("84 mm")))
sketch10.addConstraint(Sketcher.Constraint("DistanceY", 4, 2, 4, 1, Q("8 mm")))
sketch10.addConstraint(Sketcher.Constraint("DistanceY", 2, 2, -1, 1, Q("46.5 mm")))
sketch10.addConstraint(Sketcher.Constraint("Distance", 2, Q("47.19037 mm")))
pad10 = body.newObject("PartDesign::Pad", "Pad009")
pad10.Profile = sketch10
pad10.Length = 8.3

sketch11 = body.newObject("Sketcher::SketchObject", "Sketch010")
sketch11.AttachmentSupport = (doc.getObject("XY_Plane"), [""])
sketch11.MapMode = "FlatFace"
sketch11.AttachmentOffset = App.Placement(Vector(0, 0, -71), App.Rotation())
sketch11.addGeometry(Part.LineSegment(Vector(-23.957547, 0, 0), Vector(-10.5, 0, 0)), False)
sketch11.addGeometry(Part.ArcOfCircle(Part.Circle(Vector(0, 0, 0), Vector(0, 0, 1), 10.5), math.radians(180), math.radians(360)), False)
sketch11.addGeometry(Part.LineSegment(Vector(10.5, 0, 0), Vector(23.957547, 0, 0)), False)
sketch11.addGeometry(Part.LineSegment(Vector(23.957547, 0, 0), Vector(32, -46.5, 0)), False)
sketch11.addGeometry(Part.LineSegment(Vector(32, -46.5, 0), Vector(42, -46.5, 0)), False)
sketch11.addGeometry(Part.LineSegment(Vector(42, -46.5, 0), Vector(42, -54.5, 0)), False)
sketch11.addGeometry(Part.LineSegment(Vector(42, -54.5, 0), Vector(-42, -54.5, 0)), False)
sketch11.addGeometry(Part.LineSegment(Vector(-42, -54.5, 0), Vector(-42, -46.5, 0)), False)
sketch11.addGeometry(Part.LineSegment(Vector(-42, -46.5, 0), Vector(-32, -46.5, 0)), False)
sketch11.addGeometry(Part.LineSegment(Vector(-32, -46.5, 0), Vector(-23.957547, 0, 0)), False)
sketch11.addConstraint(Sketcher.Constraint("Coincident", 0, 2, 1, 1))
sketch11.addConstraint(Sketcher.Constraint("Coincident", 1, 2, 2, 1))
sketch11.addConstraint(Sketcher.Constraint("Coincident", 2, 2, 3, 1))
sketch11.addConstraint(Sketcher.Constraint("Coincident", 3, 2, 4, 1))
sketch11.addConstraint(Sketcher.Constraint("Coincident", 4, 2, 5, 1))
sketch11.addConstraint(Sketcher.Constraint("Coincident", 5, 2, 6, 1))
sketch11.addConstraint(Sketcher.Constraint("Coincident", 6, 2, 7, 1))
sketch11.addConstraint(Sketcher.Constraint("Coincident", 7, 2, 8, 1))
sketch11.addConstraint(Sketcher.Constraint("Coincident", 8, 2, 9, 1))
sketch11.addConstraint(Sketcher.Constraint("Coincident", 9, 2, 0, 1))
sketch11.addConstraint(Sketcher.Constraint("Horizontal", 0))
sketch11.addConstraint(Sketcher.Constraint("Horizontal", 2))
sketch11.addConstraint(Sketcher.Constraint("Horizontal", 4))
sketch11.addConstraint(Sketcher.Constraint("Vertical", 5))
sketch11.addConstraint(Sketcher.Constraint("Horizontal", 6))
sketch11.addConstraint(Sketcher.Constraint("Vertical", 7))
sketch11.addConstraint(Sketcher.Constraint("Horizontal", 8))
sketch11.addConstraint(Sketcher.Constraint("Coincident", 1, 3, -1, 1))
sketch11.addConstraint(Sketcher.Constraint("Symmetric", 2, 2, 9, 2, -1, 1))
sketch11.addConstraint(Sketcher.Constraint("Symmetric", 4, 2, 7, 2, -2))
sketch11.addConstraint(Sketcher.Constraint("PointOnObject", 0, 2, -1))
sketch11.addConstraint(Sketcher.Constraint("Equal", 4, 8))
sketch11.addConstraint(Sketcher.Constraint("Radius", 1, Q("10.5 mm")))
sketch11.addConstraint(Sketcher.Constraint("DistanceX", 4, 1, 4, 2, Q("10 mm")))
sketch11.addConstraint(Sketcher.Constraint("DistanceX", 6, 2, 6, 1, Q("84 mm")))
sketch11.addConstraint(Sketcher.Constraint("DistanceY", 5, 2, 5, 1, Q("8 mm")))
sketch11.addConstraint(Sketcher.Constraint("DistanceY", 3, 2, -1, 1, Q("46.5 mm")))
sketch11.addConstraint(Sketcher.Constraint("Distance", 3, Q("47.19037 mm")))
pad11 = body.newObject("PartDesign::Pad", "Pad010")
pad11.Profile = sketch11
pad11.Length = 1.85

sketch12 = body.newObject("Sketcher::SketchObject", "Sketch011")
sketch12.AttachmentSupport = (doc.getObject("XZ_Plane"), [""])
sketch12.MapMode = "FlatFace"
sketch12.AttachmentOffset = App.Placement(Vector(0, 0, 46.5), App.Rotation())
sketch12.addGeometry(Part.Circle(Vector(37, 6.5, 0), Vector(0, 0, 1), 2.25), False)
sketch12.addGeometry(Part.Circle(Vector(37, -28.5, 0), Vector(0, 0, 1), 2.25), False)
sketch12.addGeometry(Part.Circle(Vector(37, -65.5, 0), Vector(0, 0, 1), 2.25), False)
sketch12.addGeometry(Part.Circle(Vector(-37, 6.5, 0), Vector(0, 0, 1), 2.25), False)
sketch12.addGeometry(Part.Circle(Vector(-37, -28.5, 0), Vector(0, 0, 1), 2.25), False)
sketch12.addGeometry(Part.Circle(Vector(-37, -65.5, 0), Vector(0, 0, 1), 2.25), False)
sketch12.addConstraint(Sketcher.Constraint("Equal", 0, 1))
sketch12.addConstraint(Sketcher.Constraint("Equal", 1, 2))
sketch12.addConstraint(Sketcher.Constraint("Equal", 2, 3))
sketch12.addConstraint(Sketcher.Constraint("Equal", 3, 4))
sketch12.addConstraint(Sketcher.Constraint("Equal", 4, 5))
sketch12.addConstraint(Sketcher.Constraint("Symmetric", 0, 3, 3, 3, -2))
sketch12.addConstraint(Sketcher.Constraint("Symmetric", 1, 3, 4, 3, -2))
sketch12.addConstraint(Sketcher.Constraint("Symmetric", 2, 3, 5, 3, -2))
sketch12.addConstraint(Sketcher.Constraint("Vertical", 0, 3, 1, 3))
sketch12.addConstraint(Sketcher.Constraint("Vertical", 1, 3, 2, 3))
sketch12.addConstraint(Sketcher.Constraint("Diameter", 0, Q("4.5 mm")))
sketch12.addConstraint(Sketcher.Constraint("DistanceX", -1, 1, 0, 3, Q("37 mm")))
sketch12.addConstraint(Sketcher.Constraint("DistanceY", 1, 3, 0, 3, Q("35 mm")))
sketch12.addConstraint(Sketcher.Constraint("DistanceY", 2, 3, 1, 3, Q("37 mm")))
sketch12.addConstraint(Sketcher.Constraint("DistanceY", -1, 1, 0, 3, Q("6.5 mm")))
pocket1 = body.newObject("PartDesign::Pocket", "Pocket")
pocket1.Profile = sketch12
pocket1.Type = "ThroughAll"
pocket1.Reversed = True

sketch13 = body.newObject("Sketcher::SketchObject", "Sketch012")
sketch13.AttachmentSupport = (doc.getObject("XZ_Plane"), [""])
sketch13.MapMode = "FlatFace"
sketch13.addGeometry(Part.Circle(Vector(18.028774, 6, 0), Vector(0, 0, 1), 2.1), False)
sketch13.addGeometry(Part.Circle(Vector(-18.028774, 6, 0), Vector(0, 0, 1), 2.1), False)
sketch13.addGeometry(Part.Circle(Vector(18.028774, -29.5, 0), Vector(0, 0, 1), 2.1), False)
sketch13.addGeometry(Part.Circle(Vector(-18.028774, -29.5, 0), Vector(0, 0, 1), 2.1), False)
sketch13.addGeometry(Part.Circle(Vector(18.028774, -65, 0), Vector(0, 0, 1), 2.1), False)
sketch13.addGeometry(Part.Circle(Vector(-18.028774, -65, 0), Vector(0, 0, 1), 2.1), False)
sketch13.addConstraint(Sketcher.Constraint("Equal", 0, 1))
sketch13.addConstraint(Sketcher.Constraint("Equal", 1, 2))
sketch13.addConstraint(Sketcher.Constraint("Equal", 2, 3))
sketch13.addConstraint(Sketcher.Constraint("Equal", 3, 4))
sketch13.addConstraint(Sketcher.Constraint("Equal", 4, 5))
sketch13.addConstraint(Sketcher.Constraint("Symmetric", 0, 3, 1, 3, -2))
sketch13.addConstraint(Sketcher.Constraint("Symmetric", 2, 3, 3, 3, -2))
sketch13.addConstraint(Sketcher.Constraint("Symmetric", 4, 3, 5, 3, -2))
sketch13.addConstraint(Sketcher.Constraint("Vertical", 0, 3, 2, 3))
sketch13.addConstraint(Sketcher.Constraint("Vertical", 2, 3, 4, 3))
sketch13.addConstraint(Sketcher.Constraint("Diameter", 0, Q("4.2 mm")))
sketch13.addConstraint(Sketcher.Constraint("DistanceY", -1, 1, 0, 3, Q("6 mm")))
sketch13.addConstraint(Sketcher.Constraint("DistanceY", 4, 3, -1, 1, Q("65 mm")))
sketch13.addConstraint(Sketcher.Constraint("DistanceY", 2, 3, -1, 1, Q("29.5 mm")))
sketch13.addConstraint(Sketcher.Constraint("DistanceX", -1, 1, 0, 3, Q("18.028774 mm")))
pocket2 = body.newObject("PartDesign::Pocket", "Pocket001")
pocket2.Profile = sketch13
pocket2.Length = 6
pocket2.Reversed = True

sketch14 = body.newObject("Sketcher::SketchObject", "Sketch013")
sketch14.AttachmentSupport = (doc.getObject("XZ_Plane"), [""])
sketch14.MapMode = "FlatFace"
sketch14.AttachmentOffset = App.Placement(Vector(0, 0, 6), App.Rotation())
sketch14.addGeometry(Part.Circle(Vector(-18.028774, -65, 0), Vector(0, 0, 1), 2.1), False)
sketch14.addGeometry(Part.Circle(Vector(18.028774, -65, 0), Vector(0, 0, 1), 2.1), False)
sketch14.addGeometry(Part.Circle(Vector(18.028774, -29.5, 0), Vector(0, 0, 1), 2.1), False)
sketch14.addGeometry(Part.Circle(Vector(-18.028774, -29.5, 0), Vector(0, 0, 1), 2.1), False)
sketch14.addGeometry(Part.Circle(Vector(-18.028774, 6, 0), Vector(0, 0, 1), 2.1), False)
sketch14.addGeometry(Part.Circle(Vector(18.028774, 6, 0), Vector(0, 0, 1), 2.1), False)
sketch14.addConstraint(Sketcher.Constraint("Equal", 0, 1))
sketch14.addConstraint(Sketcher.Constraint("Equal", 1, 2))
sketch14.addConstraint(Sketcher.Constraint("Equal", 2, 3))
sketch14.addConstraint(Sketcher.Constraint("Equal", 3, 4))
sketch14.addConstraint(Sketcher.Constraint("Equal", 4, 5))
sketch14.addConstraint(Sketcher.Constraint("Symmetric", 0, 3, 1, 3, -2))
sketch14.addConstraint(Sketcher.Constraint("Symmetric", 2, 3, 3, 3, -2))
sketch14.addConstraint(Sketcher.Constraint("Symmetric", 4, 3, 5, 3, -2))
sketch14.addConstraint(Sketcher.Constraint("Vertical", 1, 3, 2, 3))
sketch14.addConstraint(Sketcher.Constraint("Vertical", 3, 3, 4, 3))
sketch14.addConstraint(Sketcher.Constraint("Diameter", 0, Q("4.2 mm")))
sketch14.addConstraint(Sketcher.Constraint("DistanceY", 0, 3, -1, 1, Q("65 mm")))
sketch14.addConstraint(Sketcher.Constraint("DistanceY", -1, 1, 4, 3, Q("6 mm")))
sketch14.addConstraint(Sketcher.Constraint("DistanceY", 2, 3, -1, 1, Q("29.5 mm")))
sketch14.addConstraint(Sketcher.Constraint("DistanceX", 0, 3, -1, 1, Q("18.028774 mm")))
pocket3 = body.newObject("PartDesign::Pocket", "Pocket002")
pocket3.Profile = sketch14
pocket3.Length = 5
pocket3.Reversed = True

sketch15 = body.newObject("Sketcher::SketchObject", "Sketch014")
sketch15.AttachmentSupport = (doc.getObject("XZ_Plane"), [""])
sketch15.MapMode = "FlatFace"
sketch15.AttachmentOffset = App.Placement(Vector(0, 0, 46.5), App.Rotation())
sketch15.addGeometry(Part.Circle(Vector(37, 6.5, 0), Vector(0, 0, 1), 3.75), False)
sketch15.addGeometry(Part.Circle(Vector(37, -28.5, 0), Vector(0, 0, 1), 3.75), False)
sketch15.addGeometry(Part.Circle(Vector(37, -65.5, 0), Vector(0, 0, 1), 3.75), False)
sketch15.addGeometry(Part.Circle(Vector(-37, -65.5, 0), Vector(0, 0, 1), 3.75), False)
sketch15.addGeometry(Part.Circle(Vector(-37, -28.5, 0), Vector(0, 0, 1), 3.75), False)
sketch15.addGeometry(Part.Circle(Vector(-37, 6.5, 0), Vector(0, 0, 1), 3.75), False)
sketch15.addConstraint(Sketcher.Constraint("Equal", 0, 1))
sketch15.addConstraint(Sketcher.Constraint("Equal", 1, 2))
sketch15.addConstraint(Sketcher.Constraint("Equal", 2, 3))
sketch15.addConstraint(Sketcher.Constraint("Equal", 3, 4))
sketch15.addConstraint(Sketcher.Constraint("Equal", 4, 5))
sketch15.addConstraint(Sketcher.Constraint("Symmetric", 2, 3, 3, 3, -2))
sketch15.addConstraint(Sketcher.Constraint("Symmetric", 1, 3, 4, 3, -2))
sketch15.addConstraint(Sketcher.Constraint("Symmetric", 0, 3, 5, 3, -2))
sketch15.addConstraint(Sketcher.Constraint("Vertical", 0, 3, 1, 3))
sketch15.addConstraint(Sketcher.Constraint("Vertical", 1, 3, 2, 3))
sketch15.addConstraint(Sketcher.Constraint("Diameter", 0, Q("7.5 mm")))
sketch15.addConstraint(Sketcher.Constraint("DistanceX", -1, 1, 0, 3, Q("37 mm")))
sketch15.addConstraint(Sketcher.Constraint("DistanceY", 1, 3, 0, 3, Q("35 mm")))
sketch15.addConstraint(Sketcher.Constraint("DistanceY", 2, 3, 1, 3, Q("37 mm")))
sketch15.addConstraint(Sketcher.Constraint("DistanceY", -1, 1, 0, 3, Q("6.5 mm")))
pocket4 = body.newObject("PartDesign::Pocket", "Pocket003")
pocket4.Profile = sketch15
pocket4.Length = 2
pocket4.Reversed = True

doc.recompute()
